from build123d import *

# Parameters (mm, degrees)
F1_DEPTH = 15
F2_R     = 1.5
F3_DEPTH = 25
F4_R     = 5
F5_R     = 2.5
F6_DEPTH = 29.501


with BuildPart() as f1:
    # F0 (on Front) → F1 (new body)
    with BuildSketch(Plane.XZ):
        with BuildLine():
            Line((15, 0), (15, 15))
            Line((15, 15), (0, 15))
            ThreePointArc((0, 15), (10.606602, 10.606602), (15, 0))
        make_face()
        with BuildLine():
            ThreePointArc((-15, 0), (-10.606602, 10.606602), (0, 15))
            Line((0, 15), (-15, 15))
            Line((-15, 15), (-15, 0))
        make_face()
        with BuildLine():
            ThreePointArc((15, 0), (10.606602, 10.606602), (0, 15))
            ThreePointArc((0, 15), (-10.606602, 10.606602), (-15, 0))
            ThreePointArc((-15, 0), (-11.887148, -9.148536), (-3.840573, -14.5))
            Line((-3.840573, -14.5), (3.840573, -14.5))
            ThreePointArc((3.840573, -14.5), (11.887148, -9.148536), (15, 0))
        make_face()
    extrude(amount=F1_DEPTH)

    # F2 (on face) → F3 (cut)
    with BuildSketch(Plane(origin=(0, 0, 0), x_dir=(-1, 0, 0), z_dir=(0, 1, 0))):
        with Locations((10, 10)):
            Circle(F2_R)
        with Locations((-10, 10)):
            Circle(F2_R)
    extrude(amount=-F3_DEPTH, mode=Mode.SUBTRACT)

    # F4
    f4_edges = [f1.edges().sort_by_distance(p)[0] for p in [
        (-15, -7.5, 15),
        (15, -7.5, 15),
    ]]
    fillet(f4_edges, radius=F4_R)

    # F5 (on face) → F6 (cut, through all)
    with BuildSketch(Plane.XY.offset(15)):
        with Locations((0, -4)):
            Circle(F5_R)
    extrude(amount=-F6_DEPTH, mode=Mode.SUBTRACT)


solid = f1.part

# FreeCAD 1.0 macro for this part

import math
import FreeCAD as App
import Part
import Sketcher


def edges_at(feature, points):
    """Names of the edges that pass closest to the given points."""
    edges = feature.Shape.Edges
    near = lambda p: min(range(len(edges)), key=lambda i: edges[i].distToShape(Part.Vertex(*p))[0])
    return sorted({f"Edge{near(p) + 1}" for p in points})

doc = App.newDocument("Part")
body = doc.addObject("PartDesign::Body", "Body")

sketch1 = body.newObject("Sketcher::SketchObject", "Sketch")
sketch1.AttachmentSupport = (doc.getObject("XZ_Plane"), [""])
sketch1.MapMode = "FlatFace"
sketch1.addGeometry([
    Part.LineSegment(App.Vector(15, 0, 0), App.Vector(15, 15, 0)),
    Part.LineSegment(App.Vector(15, 15, 0), App.Vector(-15, 15, 0)),
    Part.LineSegment(App.Vector(-15, 15, 0), App.Vector(-15, 0, 0)),
    Part.ArcOfCircle(Part.Circle(App.Vector(0, 0, 0), App.Vector(0, 0, 1), 15), math.radians(-180), math.radians(-105)),
    Part.LineSegment(App.Vector(-4, -14, 0), App.Vector(4, -14, 0)),
    Part.ArcOfCircle(Part.Circle(App.Vector(0, 0, 0), App.Vector(0, 0, 1), 15), math.radians(-75), math.radians(0)),
], False)
sketch1.addConstraint([
    Sketcher.Constraint("Coincident", 0, 2, 1, 1),
    Sketcher.Constraint("Coincident", 1, 2, 2, 1),
    Sketcher.Constraint("Tangent", 2, 2, 3, 1),
    Sketcher.Constraint("Coincident", 3, 2, 4, 1),
    Sketcher.Constraint("Coincident", 4, 2, 5, 1),
    Sketcher.Constraint("Tangent", 5, 2, 0, 1),
    Sketcher.Constraint("Vertical", 0),
    Sketcher.Constraint("Horizontal", 1),
    Sketcher.Constraint("Vertical", 2),
    Sketcher.Constraint("Horizontal", 4),
    Sketcher.Constraint("Coincident", 3, 3, -1, 1),
    Sketcher.Constraint("Coincident", 5, 3, -1, 1),
    Sketcher.Constraint("Equal", 3, 5),
    Sketcher.Constraint("Radius", 3, 15.0),
    Sketcher.Constraint("DistanceY", 0, 1, 0, 2, 15.0),
    Sketcher.Constraint("DistanceY", 3, 2, -1, 1, 14.5),
])
pad1 = body.newObject("PartDesign::Pad", "Pad")
pad1.Profile = sketch1
pad1.Length = 15

sketch2 = body.newObject("Sketcher::SketchObject", "Sketch001")
sketch2.AttachmentSupport = (doc.getObject("XZ_Plane"), [""])
sketch2.MapMode = "FlatFace"
sketch2.addGeometry([
    Part.Circle(App.Vector(-10, 10, 0), App.Vector(0, 0, 1), 1.5),
    Part.Circle(App.Vector(10, 10, 0), App.Vector(0, 0, 1), 1.5),
], False)
sketch2.addConstraint([
    Sketcher.Constraint("Equal", 0, 1),
    Sketcher.Constraint("Symmetric", 0, 3, 1, 3, -2),
    Sketcher.Constraint("Diameter", 0, 3.0),
    Sketcher.Constraint("DistanceX", 0, 3, -1, 1, 10.0),
    Sketcher.Constraint("DistanceY", -1, 1, 0, 3, 10.0),
])
pocket1 = body.newObject("PartDesign::Pocket", "Pocket")
pocket1.Profile = sketch2
pocket1.Length = 25
pocket1.Reversed = True
doc.recompute()

fillet = body.newObject("PartDesign::Fillet", "Fillet")
fillet.Base = (pocket1, edges_at(pocket1, [(-15, -7.5, 15), (15, -7.5, 15)]))
fillet.Radius = 5

sketch3 = body.newObject("Sketcher::SketchObject", "Sketch002")
sketch3.AttachmentSupport = (doc.getObject("XY_Plane"), [""])
sketch3.MapMode = "FlatFace"
sketch3.AttachmentOffset = App.Placement(App.Vector(0, 0, 15), App.Rotation())
sketch3.addGeometry(Part.Circle(App.Vector(0, -4, 0), App.Vector(0, 0, 1), 2.5), False)
sketch3.addConstraint([
    Sketcher.Constraint("PointOnObject", 0, 3, -2),
    Sketcher.Constraint("Diameter", 0, 5.0),
    Sketcher.Constraint("DistanceY", 0, 3, -1, 1, 4.0),
])
pocket2 = body.newObject("PartDesign::Pocket", "Pocket001")
pocket2.Profile = sketch3
pocket2.Type = "ThroughAll"

doc.recompute()
